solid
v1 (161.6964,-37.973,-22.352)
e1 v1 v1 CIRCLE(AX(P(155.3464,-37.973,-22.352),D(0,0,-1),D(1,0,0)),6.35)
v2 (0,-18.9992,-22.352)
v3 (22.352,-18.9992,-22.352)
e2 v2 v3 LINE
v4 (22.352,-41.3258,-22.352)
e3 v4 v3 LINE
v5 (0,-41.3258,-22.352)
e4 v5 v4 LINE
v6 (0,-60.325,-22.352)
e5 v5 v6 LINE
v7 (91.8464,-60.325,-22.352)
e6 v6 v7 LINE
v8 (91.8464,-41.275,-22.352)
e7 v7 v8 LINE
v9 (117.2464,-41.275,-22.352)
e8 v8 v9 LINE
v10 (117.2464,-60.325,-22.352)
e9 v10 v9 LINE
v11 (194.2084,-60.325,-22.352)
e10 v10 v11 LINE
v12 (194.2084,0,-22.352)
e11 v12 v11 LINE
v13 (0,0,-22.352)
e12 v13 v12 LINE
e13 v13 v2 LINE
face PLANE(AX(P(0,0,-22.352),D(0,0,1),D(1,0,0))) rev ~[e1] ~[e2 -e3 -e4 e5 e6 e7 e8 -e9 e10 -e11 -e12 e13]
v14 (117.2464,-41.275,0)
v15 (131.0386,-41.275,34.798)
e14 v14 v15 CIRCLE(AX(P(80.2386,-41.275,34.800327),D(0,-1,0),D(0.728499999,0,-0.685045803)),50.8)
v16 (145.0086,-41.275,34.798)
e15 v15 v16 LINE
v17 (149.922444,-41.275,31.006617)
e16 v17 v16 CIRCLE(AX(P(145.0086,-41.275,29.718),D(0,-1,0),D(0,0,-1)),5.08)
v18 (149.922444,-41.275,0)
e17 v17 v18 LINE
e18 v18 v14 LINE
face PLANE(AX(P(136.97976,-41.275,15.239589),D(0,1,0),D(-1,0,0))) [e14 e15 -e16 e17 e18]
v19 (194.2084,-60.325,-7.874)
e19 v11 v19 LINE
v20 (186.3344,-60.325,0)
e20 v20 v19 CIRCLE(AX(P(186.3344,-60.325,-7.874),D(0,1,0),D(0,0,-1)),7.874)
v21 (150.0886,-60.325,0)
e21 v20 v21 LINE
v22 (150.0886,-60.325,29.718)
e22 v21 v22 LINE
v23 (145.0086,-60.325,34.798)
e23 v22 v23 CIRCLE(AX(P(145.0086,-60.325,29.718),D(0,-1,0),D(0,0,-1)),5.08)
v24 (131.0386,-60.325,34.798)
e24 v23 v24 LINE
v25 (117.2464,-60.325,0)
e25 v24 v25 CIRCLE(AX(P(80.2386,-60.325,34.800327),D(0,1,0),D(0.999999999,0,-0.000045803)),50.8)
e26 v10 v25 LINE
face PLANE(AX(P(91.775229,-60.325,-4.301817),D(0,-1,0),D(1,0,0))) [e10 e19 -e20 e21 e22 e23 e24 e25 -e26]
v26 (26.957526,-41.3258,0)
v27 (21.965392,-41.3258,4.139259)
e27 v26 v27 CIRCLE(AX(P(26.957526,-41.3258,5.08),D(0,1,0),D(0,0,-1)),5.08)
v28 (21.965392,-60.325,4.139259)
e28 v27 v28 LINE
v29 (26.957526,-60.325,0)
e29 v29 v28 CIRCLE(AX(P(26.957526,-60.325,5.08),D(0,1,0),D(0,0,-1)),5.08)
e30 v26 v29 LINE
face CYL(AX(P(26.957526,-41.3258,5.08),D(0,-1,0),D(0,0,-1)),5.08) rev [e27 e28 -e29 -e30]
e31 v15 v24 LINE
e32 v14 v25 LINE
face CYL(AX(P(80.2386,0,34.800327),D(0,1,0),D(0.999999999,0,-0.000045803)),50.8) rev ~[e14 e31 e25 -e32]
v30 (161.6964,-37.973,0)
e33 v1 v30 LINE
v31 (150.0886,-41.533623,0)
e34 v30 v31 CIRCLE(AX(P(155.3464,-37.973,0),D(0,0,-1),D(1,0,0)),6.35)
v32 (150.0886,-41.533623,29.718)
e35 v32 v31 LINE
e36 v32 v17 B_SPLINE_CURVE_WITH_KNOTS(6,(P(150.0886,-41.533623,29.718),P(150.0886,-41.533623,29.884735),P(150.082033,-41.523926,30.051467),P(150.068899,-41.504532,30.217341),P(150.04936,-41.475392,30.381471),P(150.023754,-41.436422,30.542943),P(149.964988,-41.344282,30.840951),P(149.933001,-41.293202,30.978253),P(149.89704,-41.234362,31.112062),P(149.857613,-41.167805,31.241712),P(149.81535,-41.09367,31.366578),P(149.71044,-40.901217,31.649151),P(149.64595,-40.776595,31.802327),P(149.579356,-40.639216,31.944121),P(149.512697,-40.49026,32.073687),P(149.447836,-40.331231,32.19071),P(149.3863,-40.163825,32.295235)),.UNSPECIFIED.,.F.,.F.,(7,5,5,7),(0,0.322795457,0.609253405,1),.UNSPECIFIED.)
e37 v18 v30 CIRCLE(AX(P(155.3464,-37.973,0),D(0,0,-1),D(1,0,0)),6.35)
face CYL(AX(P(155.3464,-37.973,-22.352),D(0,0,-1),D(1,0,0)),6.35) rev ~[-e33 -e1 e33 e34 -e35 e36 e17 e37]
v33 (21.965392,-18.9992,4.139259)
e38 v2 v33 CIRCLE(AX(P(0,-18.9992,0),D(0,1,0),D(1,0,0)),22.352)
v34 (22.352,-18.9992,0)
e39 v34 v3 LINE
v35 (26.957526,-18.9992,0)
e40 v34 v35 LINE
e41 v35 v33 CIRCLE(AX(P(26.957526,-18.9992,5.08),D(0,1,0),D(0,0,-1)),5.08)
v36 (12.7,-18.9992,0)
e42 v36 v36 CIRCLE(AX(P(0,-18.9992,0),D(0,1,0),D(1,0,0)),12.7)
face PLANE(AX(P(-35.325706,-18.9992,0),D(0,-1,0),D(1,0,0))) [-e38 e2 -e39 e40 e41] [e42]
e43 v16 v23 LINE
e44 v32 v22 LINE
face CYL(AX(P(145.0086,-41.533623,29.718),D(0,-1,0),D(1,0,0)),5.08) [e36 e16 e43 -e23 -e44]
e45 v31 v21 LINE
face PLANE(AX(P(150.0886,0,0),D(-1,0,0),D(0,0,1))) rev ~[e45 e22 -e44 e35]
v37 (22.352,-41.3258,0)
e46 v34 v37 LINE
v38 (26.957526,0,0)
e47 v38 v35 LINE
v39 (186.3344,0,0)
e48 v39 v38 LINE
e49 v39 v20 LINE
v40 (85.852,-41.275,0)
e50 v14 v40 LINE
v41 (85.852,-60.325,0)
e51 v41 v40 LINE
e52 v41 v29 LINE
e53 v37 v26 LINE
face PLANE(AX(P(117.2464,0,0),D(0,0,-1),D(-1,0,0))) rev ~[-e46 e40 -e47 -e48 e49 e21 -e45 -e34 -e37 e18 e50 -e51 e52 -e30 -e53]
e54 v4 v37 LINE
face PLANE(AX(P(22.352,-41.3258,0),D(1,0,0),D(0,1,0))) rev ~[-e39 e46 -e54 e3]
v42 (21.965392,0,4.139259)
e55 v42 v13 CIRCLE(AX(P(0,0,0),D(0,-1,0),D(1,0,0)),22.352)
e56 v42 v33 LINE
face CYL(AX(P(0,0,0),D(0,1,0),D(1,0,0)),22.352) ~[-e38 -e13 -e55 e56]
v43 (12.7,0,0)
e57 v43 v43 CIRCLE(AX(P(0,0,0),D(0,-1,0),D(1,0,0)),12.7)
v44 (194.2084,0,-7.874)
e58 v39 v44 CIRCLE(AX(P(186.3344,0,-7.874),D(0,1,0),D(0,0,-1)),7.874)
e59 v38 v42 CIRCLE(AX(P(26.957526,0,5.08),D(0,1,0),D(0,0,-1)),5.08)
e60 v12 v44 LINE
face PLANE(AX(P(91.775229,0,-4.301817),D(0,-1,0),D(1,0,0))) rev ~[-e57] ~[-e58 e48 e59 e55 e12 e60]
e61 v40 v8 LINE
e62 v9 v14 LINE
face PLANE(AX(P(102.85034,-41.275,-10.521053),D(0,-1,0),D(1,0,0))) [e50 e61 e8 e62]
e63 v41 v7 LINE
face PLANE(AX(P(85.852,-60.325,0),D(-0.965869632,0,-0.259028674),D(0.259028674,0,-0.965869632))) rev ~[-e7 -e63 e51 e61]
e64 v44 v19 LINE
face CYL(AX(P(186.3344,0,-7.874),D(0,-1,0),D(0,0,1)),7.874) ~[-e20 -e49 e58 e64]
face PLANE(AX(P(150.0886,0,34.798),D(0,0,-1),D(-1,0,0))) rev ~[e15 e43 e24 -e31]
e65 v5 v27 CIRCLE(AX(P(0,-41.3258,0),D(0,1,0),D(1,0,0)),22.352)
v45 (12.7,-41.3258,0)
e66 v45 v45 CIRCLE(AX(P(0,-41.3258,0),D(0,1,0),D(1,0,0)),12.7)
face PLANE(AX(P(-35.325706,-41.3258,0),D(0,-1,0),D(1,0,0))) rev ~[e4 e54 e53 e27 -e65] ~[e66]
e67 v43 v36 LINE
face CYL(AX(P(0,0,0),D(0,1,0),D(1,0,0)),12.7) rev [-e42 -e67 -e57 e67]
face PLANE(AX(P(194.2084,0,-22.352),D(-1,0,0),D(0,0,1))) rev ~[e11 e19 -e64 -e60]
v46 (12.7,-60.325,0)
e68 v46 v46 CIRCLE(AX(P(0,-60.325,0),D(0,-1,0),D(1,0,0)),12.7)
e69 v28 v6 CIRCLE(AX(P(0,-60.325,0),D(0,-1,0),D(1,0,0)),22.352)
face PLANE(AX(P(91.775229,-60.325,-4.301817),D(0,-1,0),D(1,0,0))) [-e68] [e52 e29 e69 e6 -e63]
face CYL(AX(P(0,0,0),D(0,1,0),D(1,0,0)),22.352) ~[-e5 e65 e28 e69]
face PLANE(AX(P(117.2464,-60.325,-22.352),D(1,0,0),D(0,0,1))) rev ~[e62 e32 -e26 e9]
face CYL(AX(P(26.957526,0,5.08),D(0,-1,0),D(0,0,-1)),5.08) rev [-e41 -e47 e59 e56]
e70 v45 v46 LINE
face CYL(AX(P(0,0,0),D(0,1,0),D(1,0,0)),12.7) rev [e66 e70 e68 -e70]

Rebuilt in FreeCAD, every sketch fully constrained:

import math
import FreeCAD as App
import Part
import Sketcher

V = App.Vector
Q = App.Units.Quantity


def edges_at(feature, points):
    """Names of the edges that pass closest to the given points."""
    edges = feature.Shape.Edges
    near = lambda p: min(range(len(edges)), key=lambda i: edges[i].distToShape(Part.Vertex(*p))[0])
    return sorted({f"Edge{near(p) + 1}" for p in points})

doc = App.newDocument("Part")
body = doc.addObject("PartDesign::Body", "Body")

# Sketch on XZ plane
sketch1 = body.newObject("Sketcher::SketchObject", "Sketch")
sketch1.AttachmentSupport = (doc.getObject("XZ_Plane"), [""])
sketch1.MapMode = "FlatFace"
sketch1.addGeometry(Part.ArcOfCircle(Part.Circle(V(0, 0, 0), V(0, 0, 1), 22), math.radians(0), math.radians(270)), False)
sketch1.addGeometry(Part.LineSegment(V(0, -22, 0), V(194, -22, 0)), False)
sketch1.addGeometry(Part.LineSegment(V(194, -22, 0), V(194, 0, 0)), False)
sketch1.addGeometry(Part.LineSegment(V(194, 0, 0), V(150, 0, 0)), False)
sketch1.addGeometry(Part.LineSegment(V(150, 0, 0), V(150, 35, 0)), False)
sketch1.addGeometry(Part.LineSegment(V(150, 35, 0), V(131, 35, 0)), False)
sketch1.addGeometry(Part.ArcOfCircle(Part.Circle(V(80, 35, 0), V(0, 0, 1), 51), math.radians(-43), math.radians(0)), False)
sketch1.addGeometry(Part.LineSegment(V(117, 0, 0), V(22, 0, 0)), False)
sketch1.addGeometry(Part.Circle(V(0, 0, 0), V(0, 0, 1), 13), False)
sketch1.addConstraint(Sketcher.Constraint("Tangent", 0, 2, 1, 1))
sketch1.addConstraint(Sketcher.Constraint("Coincident", 1, 2, 2, 1))
sketch1.addConstraint(Sketcher.Constraint("Coincident", 2, 2, 3, 1))
sketch1.addConstraint(Sketcher.Constraint("Coincident", 3, 2, 4, 1))
sketch1.addConstraint(Sketcher.Constraint("Coincident", 4, 2, 5, 1))
sketch1.addConstraint(Sketcher.Constraint("Coincident", 5, 2, 6, 2))
sketch1.addConstraint(Sketcher.Constraint("Coincident", 6, 1, 7, 1))
sketch1.addConstraint(Sketcher.Constraint("Coincident", 7, 2, 0, 1))
sketch1.addConstraint(Sketcher.Constraint("Horizontal", 1))
sketch1.addConstraint(Sketcher.Constraint("Vertical", 2))
sketch1.addConstraint(Sketcher.Constraint("Horizontal", 3))
sketch1.addConstraint(Sketcher.Constraint("Vertical", 4))
sketch1.addConstraint(Sketcher.Constraint("Horizontal", 5))
sketch1.addConstraint(Sketcher.Constraint("Horizontal", 7))
sketch1.addConstraint(Sketcher.Constraint("Coincident", 0, 3, -1, 1))
sketch1.addConstraint(Sketcher.Constraint("Coincident", 8, 3, -1, 1))
sketch1.addConstraint(Sketcher.Constraint("PointOnObject", 2, 2, -1))
sketch1.addConstraint(Sketcher.Constraint("PointOnObject", 6, 1, -1))
sketch1.addConstraint(Sketcher.Constraint("Diameter", 8, Q("1 in")))
sketch1.addConstraint(Sketcher.Constraint("Radius", 6, Q("2 in")))
sketch1.addConstraint(Sketcher.Constraint("Radius", 0, Q("0.88 in")))
sketch1.addConstraint(Sketcher.Constraint("DistanceX", 5, 2, 5, 1, Q("0.75 in")))
sketch1.addConstraint(Sketcher.Constraint("DistanceY", 4, 1, 4, 2, Q("1.37 in")))
sketch1.addConstraint(Sketcher.Constraint("DistanceX", 1, 1, 1, 2, Q("7.646 in")))
sketch1.addConstraint(Sketcher.Constraint("DistanceX", 3, 2, 3, 1, Q("1.737 in")))
sketch1.addConstraint(Sketcher.Constraint("DistanceX", 7, 2, 7, 1, Q("3.736 in")))
pad1 = body.newObject("PartDesign::Pad", "Pad")
pad1.Profile = sketch1
pad1.Length = Q("2.375 in")

# Sketch on XZ plane
sketch2 = body.newObject("Sketcher::SketchObject", "Sketch001")
sketch2.AttachmentSupport = (doc.getObject("XZ_Plane"), [""])
sketch2.MapMode = "FlatFace"
sketch2.AttachmentOffset = App.Placement(V(0, 0, 2.375 * 25.4), App.Rotation())
sketch2.addGeometry(Part.LineSegment(V(117, 0, 0), V(86, 0, 0)), False)
sketch2.addGeometry(Part.LineSegment(V(86, 0, 0), V(92, -22, 0)), False)
sketch2.addGeometry(Part.LineSegment(V(92, -22, 0), V(117, -22, 0)), False)
sketch2.addGeometry(Part.LineSegment(V(117, -22, 0), V(117, 0, 0)), False)
sketch2.addConstraint(Sketcher.Constraint("Coincident", 0, 2, 1, 1))
sketch2.addConstraint(Sketcher.Constraint("Coincident", 1, 2, 2, 1))
sketch2.addConstraint(Sketcher.Constraint("Coincident", 2, 2, 3, 1))
sketch2.addConstraint(Sketcher.Constraint("Coincident", 3, 2, 0, 1))
sketch2.addConstraint(Sketcher.Constraint("Horizontal", 0))
sketch2.addConstraint(Sketcher.Constraint("Horizontal", 2))
sketch2.addConstraint(Sketcher.Constraint("Vertical", 3))
sketch2.addConstraint(Sketcher.Constraint("PointOnObject", 0, 2, -1))
sketch2.addConstraint(Sketcher.Constraint("DistanceX", 2, 1, 2, 2, Q("1 in")))
sketch2.addConstraint(Sketcher.Constraint("DistanceY", 3, 1, 3, 2, Q("0.88 in")))
sketch2.addConstraint(Sketcher.Constraint("DistanceX", 0, 2, 0, 1, Q("1.236 in")))
sketch2.addConstraint(Sketcher.Constraint("DistanceX", -1, 1, 0, 2, Q("3.38 in")))
pocket1 = body.newObject("PartDesign::Pocket", "Pocket")
pocket1.Profile = sketch2
pocket1.Length = Q("0.75 in")

# Sketch on XZ plane
sketch3 = body.newObject("Sketcher::SketchObject", "Sketch002")
sketch3.AttachmentSupport = (doc.getObject("XZ_Plane"), [""])
sketch3.MapMode = "FlatFace"
sketch3.addGeometry(Part.LineSegment(V(150, 35, 0), V(150, 0, 0)), False)
sketch3.addGeometry(Part.LineSegment(V(150, 0, 0), V(117, 0, 0)), False)
sketch3.addGeometry(Part.ArcOfCircle(Part.Circle(V(80, 35, 0), V(0, 0, 1), 51), math.radians(-43), math.radians(0)), False)
sketch3.addGeometry(Part.LineSegment(V(131, 35, 0), V(150, 35, 0)), False)
sketch3.addConstraint(Sketcher.Constraint("Coincident", 0, 2, 1, 1))
sketch3.addConstraint(Sketcher.Constraint("Coincident", 1, 2, 2, 1))
sketch3.addConstraint(Sketcher.Constraint("Coincident", 2, 2, 3, 1))
sketch3.addConstraint(Sketcher.Constraint("Coincident", 3, 2, 0, 1))
sketch3.addConstraint(Sketcher.Constraint("Vertical", 0))
sketch3.addConstraint(Sketcher.Constraint("Horizontal", 1))
sketch3.addConstraint(Sketcher.Constraint("Horizontal", 3))
sketch3.addConstraint(Sketcher.Constraint("PointOnObject", 0, 2, -1))
sketch3.addConstraint(Sketcher.Constraint("Radius", 2, Q("2 in")))
sketch3.addConstraint(Sketcher.Constraint("DistanceX", 3, 1, 3, 2, Q("0.75 in")))
sketch3.addConstraint(Sketcher.Constraint("DistanceY", 0, 2, 0, 1, Q("1.37 in")))
sketch3.addConstraint(Sketcher.Constraint("DistanceX", 1, 2, 1, 1, Q("1.293 in")))
sketch3.addConstraint(Sketcher.Constraint("DistanceX", -1, 1, 2, 3, Q("3.159 in")))
pocket2 = body.newObject("PartDesign::Pocket", "Pocket001")
pocket2.Profile = sketch3
pocket2.Length = Q("1.625 in")
pocket2.Reversed = True

# Sketch on XY plane
sketch4 = body.newObject("Sketcher::SketchObject", "Sketch003")
sketch4.AttachmentSupport = (doc.getObject("XY_Plane"), [""])
sketch4.MapMode = "FlatFace"
sketch4.AttachmentOffset = App.Placement(V(0, 0, -0.88 * 25.4), App.Rotation())
sketch4.addGeometry(Part.Circle(V(155, -38, 0), V(0, 0, 1), 6), False)
sketch4.addConstraint(Sketcher.Constraint("Diameter", 0, Q("0.5 in")))
sketch4.addConstraint(Sketcher.Constraint("DistanceX", -1, 1, 0, 3, Q("6.116 in")))
sketch4.addConstraint(Sketcher.Constraint("DistanceY", 0, 3, -1, 1, Q("1.495 in")))
pocket3 = body.newObject("PartDesign::Pocket", "Pocket002")
pocket3.Profile = sketch4
pocket3.Type = "ThroughAll"
pocket3.Reversed = True

# Sketch on XY plane
sketch5 = body.newObject("Sketcher::SketchObject", "Sketch004")
sketch5.AttachmentSupport = (doc.getObject("XY_Plane"), [""])
sketch5.MapMode = "FlatFace"
sketch5.addGeometry(Part.LineSegment(V(-35, -19, 0), V(-35, -41, 0)), False)
sketch5.addGeometry(Part.LineSegment(V(-35, -41, 0), V(22, -41, 0)), False)
sketch5.addGeometry(Part.LineSegment(V(22, -41, 0), V(22, -19, 0)), False)
sketch5.addGeometry(Part.LineSegment(V(22, -19, 0), V(-35, -19, 0)), False)
sketch5.addConstraint(Sketcher.Constraint("Coincident", 0, 2, 1, 1))
sketch5.addConstraint(Sketcher.Constraint("Coincident", 1, 2, 2, 1))
sketch5.addConstraint(Sketcher.Constraint("Coincident", 2, 2, 3, 1))
sketch5.addConstraint(Sketcher.Constraint("Coincident", 3, 2, 0, 1))
sketch5.addConstraint(Sketcher.Constraint("Vertical", 0))
sketch5.addConstraint(Sketcher.Constraint("Horizontal", 1))
sketch5.addConstraint(Sketcher.Constraint("Vertical", 2))
sketch5.addConstraint(Sketcher.Constraint("Horizontal", 3))
sketch5.addConstraint(Sketcher.Constraint("DistanceY", 0, 2, 0, 1, Q("0.879 in")))
sketch5.addConstraint(Sketcher.Constraint("DistanceX", -1, 1, 1, 2, Q("0.88 in")))
sketch5.addConstraint(Sketcher.Constraint("DistanceY", 0, 2, -1, 1, Q("1.627 in")))
sketch5.addConstraint(Sketcher.Constraint("DistanceX", 1, 1, 1, 2, Q("57.677706 mm")))
pocket4 = body.newObject("PartDesign::Pocket", "Pocket003")
pocket4.Profile = sketch5
pocket4.Length = Q("2 in")
pocket4.Midplane = True
doc.recompute()

fillet = body.newObject("PartDesign::Fillet", "Fillet")
fillet.Base = (pocket4, edges_at(pocket4, [(194.208, -30.163, 0)]))
fillet.Radius = Q("0.31 in")
doc.recompute()

fillet2 = body.newObject("PartDesign::Fillet", "Fillet001")
fillet2.Base = (fillet, edges_at(fillet, [(150.089, -50.929, 34.798)]))
fillet2.Radius = Q("0.2 in")
doc.recompute()

fillet3 = body.newObject("PartDesign::Fillet", "Fillet002")
fillet3.Base = (fillet2, edges_at(fillet2, [(22.352, -9.5, 0), (22.352, -50.825, 0)]))
fillet3.Radius = Q("0.2 in")

doc.recompute()
